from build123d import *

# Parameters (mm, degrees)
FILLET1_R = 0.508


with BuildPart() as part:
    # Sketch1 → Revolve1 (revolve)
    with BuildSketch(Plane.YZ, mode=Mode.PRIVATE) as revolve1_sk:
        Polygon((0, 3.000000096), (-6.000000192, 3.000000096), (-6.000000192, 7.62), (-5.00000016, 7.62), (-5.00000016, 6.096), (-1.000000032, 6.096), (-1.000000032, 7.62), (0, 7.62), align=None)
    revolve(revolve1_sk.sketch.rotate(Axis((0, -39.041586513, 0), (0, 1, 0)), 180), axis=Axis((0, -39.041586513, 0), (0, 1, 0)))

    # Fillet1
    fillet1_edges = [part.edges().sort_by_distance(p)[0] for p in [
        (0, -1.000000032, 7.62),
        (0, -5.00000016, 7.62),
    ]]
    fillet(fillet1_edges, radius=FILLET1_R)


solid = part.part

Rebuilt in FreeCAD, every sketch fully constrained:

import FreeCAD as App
import Part
import Sketcher
Q = App.Units.Quantity


def edges_at(feature, points):
    """Names of the edges that pass closest to the given points."""
    edges = feature.Shape.Edges
    near = lambda p: min(range(len(edges)), key=lambda i: edges[i].distToShape(Part.Vertex(*p))[0])
    return sorted({f"Edge{near(p) + 1}" for p in points})


def add_polygon(sketch, points):
    """Adds a closed chain of lines whose ends are joined by coincident constraints."""
    first, n = sketch.GeometryCount, len(points)
    for a, b in zip(points, points[1:] + points[:1]):
        sketch.addGeometry(Part.LineSegment(App.Vector(*a, 0), App.Vector(*b, 0)), False)
    for i in range(n):
        sketch.addConstraint(Sketcher.Constraint("Coincident", first + i, 2, first + (i + 1) % n, 1))

doc = App.newDocument("Part")
body = doc.addObject("PartDesign::Body", "Body")

# Sketch on YZ plane
sketch1 = doc.addObject("Sketcher::SketchObject", "Sketch")
body.addObject(sketch1)
sketch1.AttachmentSupport = (doc.YZ_Plane, [""])
sketch1.MapMode = "FlatFace"
add_polygon(sketch1, [(-6, 3), (0, 3), (0, 7.6), (-1, 7.6), (-1, 6.1), (-5, 6.1), (-5, 7.6), (-6, 7.6)])  # lines 0-7
sketch1.addConstraint([
    Sketcher.Constraint("Horizontal", 0),
    Sketcher.Constraint("Vertical", 1),
    Sketcher.Constraint("Horizontal", 2),
    Sketcher.Constraint("Vertical", 3),
    Sketcher.Constraint("Horizontal", 4),
    Sketcher.Constraint("Vertical", 5),
    Sketcher.Constraint("Horizontal", 6),
    Sketcher.Constraint("Vertical", 7),
    Sketcher.Constraint("PointOnObject", 0, 2, -2),
    Sketcher.Constraint("Horizontal", 2, 2, 5, 2),
    Sketcher.Constraint("Equal", 2, 6),
    Sketcher.Constraint("DistanceX", 0, 1, 0, 2, Q("6 mm")),
    Sketcher.Constraint("DistanceX", 2, 2, 2, 1, Q("1 mm")),
    Sketcher.Constraint("DistanceY", -1, 1, 0, 2, Q("3 mm")),
    Sketcher.Constraint("DistanceY", 1, 1, 1, 2, Q("4.62 mm")),
    Sketcher.Constraint("DistanceY", 3, 2, 3, 1, Q("1.524 mm")),
])
revolution = doc.addObject("PartDesign::Revolution", "Revolution")
body.addObject(revolution)
revolution.Profile = sketch1
revolution.ReferenceAxis = (sketch1, ["H_Axis"])
revolution.Angle = 360
doc.recompute()

fillet = doc.addObject("PartDesign::Fillet", "Fillet")
body.addObject(fillet)
fillet.Base = (revolution, edges_at(revolution, [(0, -1, 7.62), (0, -5, 7.62)]))
fillet.Radius = 0.508

doc.recompute()
